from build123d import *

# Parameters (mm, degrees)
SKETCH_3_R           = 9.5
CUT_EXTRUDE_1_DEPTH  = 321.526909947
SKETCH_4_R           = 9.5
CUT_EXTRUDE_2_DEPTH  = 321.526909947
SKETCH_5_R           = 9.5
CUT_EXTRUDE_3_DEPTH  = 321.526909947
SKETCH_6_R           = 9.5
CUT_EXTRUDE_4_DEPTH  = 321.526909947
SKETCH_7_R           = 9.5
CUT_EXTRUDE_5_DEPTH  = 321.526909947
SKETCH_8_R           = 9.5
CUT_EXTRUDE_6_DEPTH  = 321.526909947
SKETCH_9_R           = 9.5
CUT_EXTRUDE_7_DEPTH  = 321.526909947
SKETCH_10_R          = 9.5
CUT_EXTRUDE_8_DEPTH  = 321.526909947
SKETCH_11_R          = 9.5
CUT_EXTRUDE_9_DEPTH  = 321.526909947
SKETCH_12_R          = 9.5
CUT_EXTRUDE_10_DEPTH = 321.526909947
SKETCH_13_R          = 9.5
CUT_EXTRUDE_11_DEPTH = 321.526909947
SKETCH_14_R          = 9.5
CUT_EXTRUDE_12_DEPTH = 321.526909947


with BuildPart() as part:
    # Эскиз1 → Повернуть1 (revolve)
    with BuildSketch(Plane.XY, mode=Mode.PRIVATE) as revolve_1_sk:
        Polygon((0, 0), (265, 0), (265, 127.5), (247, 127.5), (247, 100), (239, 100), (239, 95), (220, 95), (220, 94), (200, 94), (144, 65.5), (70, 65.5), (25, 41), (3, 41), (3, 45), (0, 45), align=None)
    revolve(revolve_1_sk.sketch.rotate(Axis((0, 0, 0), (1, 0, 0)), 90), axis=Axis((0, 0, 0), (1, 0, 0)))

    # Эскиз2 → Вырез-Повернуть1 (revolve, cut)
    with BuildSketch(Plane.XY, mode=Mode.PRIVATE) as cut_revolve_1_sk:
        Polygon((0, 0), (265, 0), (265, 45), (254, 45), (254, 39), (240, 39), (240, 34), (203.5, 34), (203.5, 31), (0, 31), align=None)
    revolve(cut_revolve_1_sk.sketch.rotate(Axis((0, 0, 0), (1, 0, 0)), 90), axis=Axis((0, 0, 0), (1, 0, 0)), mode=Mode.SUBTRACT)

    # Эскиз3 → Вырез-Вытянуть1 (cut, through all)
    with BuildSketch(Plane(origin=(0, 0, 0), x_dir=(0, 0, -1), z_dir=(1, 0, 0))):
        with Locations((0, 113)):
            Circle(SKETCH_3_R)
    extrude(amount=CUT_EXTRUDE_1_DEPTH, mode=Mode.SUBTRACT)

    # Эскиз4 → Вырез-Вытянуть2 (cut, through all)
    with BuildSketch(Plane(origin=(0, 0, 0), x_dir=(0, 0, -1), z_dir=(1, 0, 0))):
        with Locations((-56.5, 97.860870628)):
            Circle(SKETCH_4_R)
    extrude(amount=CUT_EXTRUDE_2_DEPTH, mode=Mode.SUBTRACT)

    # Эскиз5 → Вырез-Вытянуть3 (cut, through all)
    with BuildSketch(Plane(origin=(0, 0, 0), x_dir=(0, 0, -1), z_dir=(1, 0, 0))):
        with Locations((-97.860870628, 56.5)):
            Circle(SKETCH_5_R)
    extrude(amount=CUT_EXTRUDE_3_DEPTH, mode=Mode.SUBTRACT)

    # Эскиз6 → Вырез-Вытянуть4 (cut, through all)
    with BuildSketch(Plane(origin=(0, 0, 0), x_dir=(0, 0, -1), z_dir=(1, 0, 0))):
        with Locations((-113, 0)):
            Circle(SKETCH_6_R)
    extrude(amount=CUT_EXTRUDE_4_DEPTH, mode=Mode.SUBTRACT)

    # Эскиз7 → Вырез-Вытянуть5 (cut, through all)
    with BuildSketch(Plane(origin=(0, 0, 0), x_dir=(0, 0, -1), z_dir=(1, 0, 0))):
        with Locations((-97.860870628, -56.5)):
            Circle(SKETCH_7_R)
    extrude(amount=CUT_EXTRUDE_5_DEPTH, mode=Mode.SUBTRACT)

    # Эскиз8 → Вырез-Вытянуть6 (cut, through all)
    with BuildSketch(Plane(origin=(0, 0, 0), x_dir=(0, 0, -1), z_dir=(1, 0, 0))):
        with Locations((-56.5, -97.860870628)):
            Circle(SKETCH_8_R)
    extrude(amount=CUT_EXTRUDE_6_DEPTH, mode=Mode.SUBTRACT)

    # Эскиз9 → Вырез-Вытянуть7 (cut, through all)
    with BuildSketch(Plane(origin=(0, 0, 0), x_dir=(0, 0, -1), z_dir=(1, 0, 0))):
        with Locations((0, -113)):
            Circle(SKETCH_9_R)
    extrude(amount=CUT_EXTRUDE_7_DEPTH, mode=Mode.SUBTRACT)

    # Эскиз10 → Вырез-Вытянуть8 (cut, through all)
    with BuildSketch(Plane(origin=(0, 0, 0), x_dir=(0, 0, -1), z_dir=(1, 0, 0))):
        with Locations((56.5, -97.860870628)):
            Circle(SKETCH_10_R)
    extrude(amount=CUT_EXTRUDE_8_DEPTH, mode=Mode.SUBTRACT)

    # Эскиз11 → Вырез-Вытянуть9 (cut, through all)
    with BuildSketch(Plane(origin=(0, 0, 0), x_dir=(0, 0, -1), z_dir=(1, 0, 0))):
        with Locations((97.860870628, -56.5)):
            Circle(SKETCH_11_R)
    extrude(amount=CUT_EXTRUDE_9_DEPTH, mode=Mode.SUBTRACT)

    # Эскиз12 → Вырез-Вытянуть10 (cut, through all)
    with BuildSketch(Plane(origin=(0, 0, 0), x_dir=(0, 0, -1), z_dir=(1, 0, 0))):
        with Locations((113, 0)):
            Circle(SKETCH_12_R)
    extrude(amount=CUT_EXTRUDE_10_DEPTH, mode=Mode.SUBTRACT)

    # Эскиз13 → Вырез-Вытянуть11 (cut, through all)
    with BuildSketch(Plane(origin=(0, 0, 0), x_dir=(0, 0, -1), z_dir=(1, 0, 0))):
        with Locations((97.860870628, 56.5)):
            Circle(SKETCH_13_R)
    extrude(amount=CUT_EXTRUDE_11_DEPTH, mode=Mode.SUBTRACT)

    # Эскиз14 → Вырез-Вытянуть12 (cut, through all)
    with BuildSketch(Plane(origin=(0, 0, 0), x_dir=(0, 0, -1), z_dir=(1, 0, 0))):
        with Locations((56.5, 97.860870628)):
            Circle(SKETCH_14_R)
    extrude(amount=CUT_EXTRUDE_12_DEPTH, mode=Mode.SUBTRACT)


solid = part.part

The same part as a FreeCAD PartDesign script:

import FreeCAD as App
import Part
import Sketcher


def add_polygon(sketch, points):
    """Adds a closed chain of lines whose ends are joined by coincident constraints."""
    first, n = sketch.GeometryCount, len(points)
    for a, b in zip(points, points[1:] + points[:1]):
        sketch.addGeometry(Part.LineSegment(App.Vector(*a, 0), App.Vector(*b, 0)), False)
    for i in range(n):
        sketch.addConstraint(Sketcher.Constraint("Coincident", first + i, 2, first + (i + 1) % n, 1))

doc = App.newDocument("Part")
body = doc.addObject("PartDesign::Body", "Body")

sketch1 = body.newObject("Sketcher::SketchObject", "Sketch")
sketch1.AttachmentSupport = (doc.getObject("XY_Plane"), [""])
sketch1.MapMode = "FlatFace"
add_polygon(sketch1, [(0, 0), (265, 0), (265, 127.5), (247, 127.5), (247, 100), (239, 100), (239, 95), (220, 95), (220, 94), (200, 94), (144, 65.5), (70, 65.5), (25, 41), (3, 41), (3, 45), (0, 45)])
sketch1.addConstraint(Sketcher.Constraint("Horizontal", 0))
sketch1.addConstraint(Sketcher.Constraint("Vertical", 1))
sketch1.addConstraint(Sketcher.Constraint("Horizontal", 2))
sketch1.addConstraint(Sketcher.Constraint("Vertical", 3))
sketch1.addConstraint(Sketcher.Constraint("Horizontal", 4))
sketch1.addConstraint(Sketcher.Constraint("Vertical", 5))
sketch1.addConstraint(Sketcher.Constraint("Horizontal", 6))
sketch1.addConstraint(Sketcher.Constraint("Vertical", 7))
sketch1.addConstraint(Sketcher.Constraint("Horizontal", 8))
sketch1.addConstraint(Sketcher.Constraint("Horizontal", 10))
sketch1.addConstraint(Sketcher.Constraint("Horizontal", 12))
sketch1.addConstraint(Sketcher.Constraint("Vertical", 13))
sketch1.addConstraint(Sketcher.Constraint("Horizontal", 14))
sketch1.addConstraint(Sketcher.Constraint("Vertical", 15))
sketch1.addConstraint(Sketcher.Constraint("Coincident", 15, 2, -1, 1))
sketch1.addConstraint(Sketcher.Constraint("DistanceX", 0, 1, 0, 2, 265.0))
sketch1.addConstraint(Sketcher.Constraint("DistanceX", 2, 2, 2, 1, 18.0))
sketch1.addConstraint(Sketcher.Constraint("DistanceX", 4, 2, 4, 1, 8.0))
sketch1.addConstraint(Sketcher.Constraint("DistanceX", 6, 2, 6, 1, 19.0))
sketch1.addConstraint(Sketcher.Constraint("DistanceX", 8, 2, 8, 1, 20.0))
sketch1.addConstraint(Sketcher.Constraint("DistanceX", 10, 2, 10, 1, 74.0))
sketch1.addConstraint(Sketcher.Constraint("DistanceX", 12, 2, 12, 1, 22.0))
sketch1.addConstraint(Sketcher.Constraint("DistanceX", 14, 2, 14, 1, 3.0))
sketch1.addConstraint(Sketcher.Constraint("DistanceY", 5, 2, 5, 1, 5.0))
sketch1.addConstraint(Sketcher.Constraint("DistanceY", 7, 2, 7, 1, 1.0))
sketch1.addConstraint(Sketcher.Constraint("DistanceY", 13, 1, 13, 2, 4.0))
sketch1.addConstraint(Sketcher.Constraint("DistanceY", 15, 2, 15, 1, 45.0))
sketch1.addConstraint(Sketcher.Constraint("DistanceY", 1, 1, 1, 2, 127.5))
sketch1.addConstraint(Sketcher.Constraint("DistanceY", 3, 2, 3, 1, 27.5))
sketch1.addConstraint(Sketcher.Constraint("DistanceX", -1, 1, 9, 2, 144.0))
sketch1.addConstraint(Sketcher.Constraint("DistanceY", -1, 1, 9, 2, 65.5))
revolution = body.newObject("PartDesign::Revolution", "Revolution")
revolution.Profile = sketch1
revolution.ReferenceAxis = (sketch1, ["H_Axis"])
revolution.Angle = 360

sketch2 = body.newObject("Sketcher::SketchObject", "Sketch001")
sketch2.AttachmentSupport = (doc.getObject("XY_Plane"), [""])
sketch2.MapMode = "FlatFace"
add_polygon(sketch2, [(0, 0), (265, 0), (265, 45), (254, 45), (254, 39), (240, 39), (240, 34), (203.5, 34), (203.5, 31), (0, 31)])
sketch2.addConstraint(Sketcher.Constraint("Horizontal", 0))
sketch2.addConstraint(Sketcher.Constraint("Vertical", 1))
sketch2.addConstraint(Sketcher.Constraint("Horizontal", 2))
sketch2.addConstraint(Sketcher.Constraint("Vertical", 3))
sketch2.addConstraint(Sketcher.Constraint("Horizontal", 4))
sketch2.addConstraint(Sketcher.Constraint("Vertical", 5))
sketch2.addConstraint(Sketcher.Constraint("Horizontal", 6))
sketch2.addConstraint(Sketcher.Constraint("Vertical", 7))
sketch2.addConstraint(Sketcher.Constraint("Horizontal", 8))
sketch2.addConstraint(Sketcher.Constraint("Vertical", 9))
sketch2.addConstraint(Sketcher.Constraint("Coincident", 9, 2, -1, 1))
sketch2.addConstraint(Sketcher.Constraint("DistanceX", 0, 1, 0, 2, 265.0))
sketch2.addConstraint(Sketcher.Constraint("DistanceX", 2, 2, 2, 1, 11.0))
sketch2.addConstraint(Sketcher.Constraint("DistanceX", 4, 2, 4, 1, 14.0))
sketch2.addConstraint(Sketcher.Constraint("DistanceY", 1, 1, 1, 2, 45.0))
sketch2.addConstraint(Sketcher.Constraint("DistanceY", 3, 2, 3, 1, 6.0))
sketch2.addConstraint(Sketcher.Constraint("DistanceY", 5, 2, 5, 1, 5.0))
sketch2.addConstraint(Sketcher.Constraint("DistanceY", 7, 2, 7, 1, 3.0))
sketch2.addConstraint(Sketcher.Constraint("DistanceX", 6, 2, 6, 1, 36.5))
groove = body.newObject("PartDesign::Groove", "Groove")
groove.Profile = sketch2
groove.ReferenceAxis = (sketch2, ["H_Axis"])
groove.Angle = 360

sketch3 = body.newObject("Sketcher::SketchObject", "Sketch002")
sketch3.AttachmentSupport = (doc.getObject("YZ_Plane"), [""])
sketch3.MapMode = "FlatFace"
sketch3.addGeometry(Part.Circle(App.Vector(113, 0, 0), App.Vector(0, 0, 1), 10), False)
sketch3.addConstraint(Sketcher.Constraint("PointOnObject", 0, 3, -1))
sketch3.addConstraint(Sketcher.Constraint("Diameter", 0, 19.0))
sketch3.addConstraint(Sketcher.Constraint("DistanceX", -1, 1, 0, 3, 113.0))
pocket1 = body.newObject("PartDesign::Pocket", "Pocket")
pocket1.Profile = sketch3
pocket1.Type = "ThroughAll"
pocket1.Reversed = True

sketch4 = body.newObject("Sketcher::SketchObject", "Sketch003")
sketch4.AttachmentSupport = (doc.getObject("YZ_Plane"), [""])
sketch4.MapMode = "FlatFace"
sketch4.addGeometry(Part.Circle(App.Vector(98, 56, 0), App.Vector(0, 0, 1), 10), False)
sketch4.addConstraint(Sketcher.Constraint("Diameter", 0, 19.0))
sketch4.addConstraint(Sketcher.Constraint("DistanceY", -1, 1, 0, 3, 56.5))
sketch4.addConstraint(Sketcher.Constraint("DistanceX", -1, 1, 0, 3, 97.860871))
pocket2 = body.newObject("PartDesign::Pocket", "Pocket001")
pocket2.Profile = sketch4
pocket2.Type = "ThroughAll"
pocket2.Reversed = True

sketch5 = body.newObject("Sketcher::SketchObject", "Sketch004")
sketch5.AttachmentSupport = (doc.getObject("YZ_Plane"), [""])
sketch5.MapMode = "FlatFace"
sketch5.addGeometry(Part.Circle(App.Vector(56, 98, 0), App.Vector(0, 0, 1), 10), False)
sketch5.addConstraint(Sketcher.Constraint("Diameter", 0, 19.0))
sketch5.addConstraint(Sketcher.Constraint("DistanceX", -1, 1, 0, 3, 56.5))
sketch5.addConstraint(Sketcher.Constraint("DistanceY", -1, 1, 0, 3, 97.860871))
pocket3 = body.newObject("PartDesign::Pocket", "Pocket002")
pocket3.Profile = sketch5
pocket3.Type = "ThroughAll"
pocket3.Reversed = True

sketch6 = body.newObject("Sketcher::SketchObject", "Sketch005")
sketch6.AttachmentSupport = (doc.getObject("YZ_Plane"), [""])
sketch6.MapMode = "FlatFace"
sketch6.addGeometry(Part.Circle(App.Vector(0, 113, 0), App.Vector(0, 0, 1), 10), False)
sketch6.addConstraint(Sketcher.Constraint("PointOnObject", 0, 3, -2))
sketch6.addConstraint(Sketcher.Constraint("Diameter", 0, 19.0))
sketch6.addConstraint(Sketcher.Constraint("DistanceY", -1, 1, 0, 3, 113.0))
pocket4 = body.newObject("PartDesign::Pocket", "Pocket003")
pocket4.Profile = sketch6
pocket4.Type = "ThroughAll"
pocket4.Reversed = True

sketch7 = body.newObject("Sketcher::SketchObject", "Sketch006")
sketch7.AttachmentSupport = (doc.getObject("YZ_Plane"), [""])
sketch7.MapMode = "FlatFace"
sketch7.addGeometry(Part.Circle(App.Vector(-56, 98, 0), App.Vector(0, 0, 1), 10), False)
sketch7.addConstraint(Sketcher.Constraint("Diameter", 0, 19.0))
sketch7.addConstraint(Sketcher.Constraint("DistanceX", 0, 3, -1, 1, 56.5))
sketch7.addConstraint(Sketcher.Constraint("DistanceY", -1, 1, 0, 3, 97.860871))
pocket5 = body.newObject("PartDesign::Pocket", "Pocket004")
pocket5.Profile = sketch7
pocket5.Type = "ThroughAll"
pocket5.Reversed = True

sketch8 = body.newObject("Sketcher::SketchObject", "Sketch007")
sketch8.AttachmentSupport = (doc.getObject("YZ_Plane"), [""])
sketch8.MapMode = "FlatFace"
sketch8.addGeometry(Part.Circle(App.Vector(-98, 56, 0), App.Vector(0, 0, 1), 10), False)
sketch8.addConstraint(Sketcher.Constraint("Diameter", 0, 19.0))
sketch8.addConstraint(Sketcher.Constraint("DistanceY", -1, 1, 0, 3, 56.5))
sketch8.addConstraint(Sketcher.Constraint("DistanceX", 0, 3, -1, 1, 97.860871))
pocket6 = body.newObject("PartDesign::Pocket", "Pocket005")
pocket6.Profile = sketch8
pocket6.Type = "ThroughAll"
pocket6.Reversed = True

sketch9 = body.newObject("Sketcher::SketchObject", "Sketch008")
sketch9.AttachmentSupport = (doc.getObject("YZ_Plane"), [""])
sketch9.MapMode = "FlatFace"
sketch9.addGeometry(Part.Circle(App.Vector(-113, 0, 0), App.Vector(0, 0, 1), 10), False)
sketch9.addConstraint(Sketcher.Constraint("PointOnObject", 0, 3, -1))
sketch9.addConstraint(Sketcher.Constraint("Diameter", 0, 19.0))
sketch9.addConstraint(Sketcher.Constraint("DistanceX", 0, 3, -1, 1, 113.0))
pocket7 = body.newObject("PartDesign::Pocket", "Pocket006")
pocket7.Profile = sketch9
pocket7.Type = "ThroughAll"
pocket7.Reversed = True

sketch10 = body.newObject("Sketcher::SketchObject", "Sketch009")
sketch10.AttachmentSupport = (doc.getObject("YZ_Plane"), [""])
sketch10.MapMode = "FlatFace"
sketch10.addGeometry(Part.Circle(App.Vector(-98, -56, 0), App.Vector(0, 0, 1), 10), False)
sketch10.addConstraint(Sketcher.Constraint("Diameter", 0, 19.0))
sketch10.addConstraint(Sketcher.Constraint("DistanceY", 0, 3, -1, 1, 56.5))
sketch10.addConstraint(Sketcher.Constraint("DistanceX", 0, 3, -1, 1, 97.860871))
pocket8 = body.newObject("PartDesign::Pocket", "Pocket007")
pocket8.Profile = sketch10
pocket8.Type = "ThroughAll"
pocket8.Reversed = True

sketch11 = body.newObject("Sketcher::SketchObject", "Sketch010")
sketch11.AttachmentSupport = (doc.getObject("YZ_Plane"), [""])
sketch11.MapMode = "FlatFace"
sketch11.addGeometry(Part.Circle(App.Vector(-56, -98, 0), App.Vector(0, 0, 1), 10), False)
sketch11.addConstraint(Sketcher.Constraint("Diameter", 0, 19.0))
sketch11.addConstraint(Sketcher.Constraint("DistanceX", 0, 3, -1, 1, 56.5))
sketch11.addConstraint(Sketcher.Constraint("DistanceY", 0, 3, -1, 1, 97.860871))
pocket9 = body.newObject("PartDesign::Pocket", "Pocket008")
pocket9.Profile = sketch11
pocket9.Type = "ThroughAll"
pocket9.Reversed = True

sketch12 = body.newObject("Sketcher::SketchObject", "Sketch011")
sketch12.AttachmentSupport = (doc.getObject("YZ_Plane"), [""])
sketch12.MapMode = "FlatFace"
sketch12.addGeometry(Part.Circle(App.Vector(0, -113, 0), App.Vector(0, 0, 1), 10), False)
sketch12.addConstraint(Sketcher.Constraint("PointOnObject", 0, 3, -2))
sketch12.addConstraint(Sketcher.Constraint("Diameter", 0, 19.0))
sketch12.addConstraint(Sketcher.Constraint("DistanceY", 0, 3, -1, 1, 113.0))
pocket10 = body.newObject("PartDesign::Pocket", "Pocket009")
pocket10.Profile = sketch12
pocket10.Type = "ThroughAll"
pocket10.Reversed = True

sketch13 = body.newObject("Sketcher::SketchObject", "Sketch012")
sketch13.AttachmentSupport = (doc.getObject("YZ_Plane"), [""])
sketch13.MapMode = "FlatFace"
sketch13.addGeometry(Part.Circle(App.Vector(56, -98, 0), App.Vector(0, 0, 1), 10), False)
sketch13.addConstraint(Sketcher.Constraint("Diameter", 0, 19.0))
sketch13.addConstraint(Sketcher.Constraint("DistanceX", -1, 1, 0, 3, 56.5))
sketch13.addConstraint(Sketcher.Constraint("DistanceY", 0, 3, -1, 1, 97.860871))
pocket11 = body.newObject("PartDesign::Pocket", "Pocket010")
pocket11.Profile = sketch13
pocket11.Type = "ThroughAll"
pocket11.Reversed = True

sketch14 = body.newObject("Sketcher::SketchObject", "Sketch013")
sketch14.AttachmentSupport = (doc.getObject("YZ_Plane"), [""])
sketch14.MapMode = "FlatFace"
sketch14.addGeometry(Part.Circle(App.Vector(98, -56, 0), App.Vector(0, 0, 1), 10), False)
sketch14.addConstraint(Sketcher.Constraint("Diameter", 0, 19.0))
sketch14.addConstraint(Sketcher.Constraint("DistanceY", 0, 3, -1, 1, 56.5))
sketch14.addConstraint(Sketcher.Constraint("DistanceX", -1, 1, 0, 3, 97.860871))
pocket12 = body.newObject("PartDesign::Pocket", "Pocket011")
pocket12.Profile = sketch14
pocket12.Type = "ThroughAll"
pocket12.Reversed = True

doc.recompute()
